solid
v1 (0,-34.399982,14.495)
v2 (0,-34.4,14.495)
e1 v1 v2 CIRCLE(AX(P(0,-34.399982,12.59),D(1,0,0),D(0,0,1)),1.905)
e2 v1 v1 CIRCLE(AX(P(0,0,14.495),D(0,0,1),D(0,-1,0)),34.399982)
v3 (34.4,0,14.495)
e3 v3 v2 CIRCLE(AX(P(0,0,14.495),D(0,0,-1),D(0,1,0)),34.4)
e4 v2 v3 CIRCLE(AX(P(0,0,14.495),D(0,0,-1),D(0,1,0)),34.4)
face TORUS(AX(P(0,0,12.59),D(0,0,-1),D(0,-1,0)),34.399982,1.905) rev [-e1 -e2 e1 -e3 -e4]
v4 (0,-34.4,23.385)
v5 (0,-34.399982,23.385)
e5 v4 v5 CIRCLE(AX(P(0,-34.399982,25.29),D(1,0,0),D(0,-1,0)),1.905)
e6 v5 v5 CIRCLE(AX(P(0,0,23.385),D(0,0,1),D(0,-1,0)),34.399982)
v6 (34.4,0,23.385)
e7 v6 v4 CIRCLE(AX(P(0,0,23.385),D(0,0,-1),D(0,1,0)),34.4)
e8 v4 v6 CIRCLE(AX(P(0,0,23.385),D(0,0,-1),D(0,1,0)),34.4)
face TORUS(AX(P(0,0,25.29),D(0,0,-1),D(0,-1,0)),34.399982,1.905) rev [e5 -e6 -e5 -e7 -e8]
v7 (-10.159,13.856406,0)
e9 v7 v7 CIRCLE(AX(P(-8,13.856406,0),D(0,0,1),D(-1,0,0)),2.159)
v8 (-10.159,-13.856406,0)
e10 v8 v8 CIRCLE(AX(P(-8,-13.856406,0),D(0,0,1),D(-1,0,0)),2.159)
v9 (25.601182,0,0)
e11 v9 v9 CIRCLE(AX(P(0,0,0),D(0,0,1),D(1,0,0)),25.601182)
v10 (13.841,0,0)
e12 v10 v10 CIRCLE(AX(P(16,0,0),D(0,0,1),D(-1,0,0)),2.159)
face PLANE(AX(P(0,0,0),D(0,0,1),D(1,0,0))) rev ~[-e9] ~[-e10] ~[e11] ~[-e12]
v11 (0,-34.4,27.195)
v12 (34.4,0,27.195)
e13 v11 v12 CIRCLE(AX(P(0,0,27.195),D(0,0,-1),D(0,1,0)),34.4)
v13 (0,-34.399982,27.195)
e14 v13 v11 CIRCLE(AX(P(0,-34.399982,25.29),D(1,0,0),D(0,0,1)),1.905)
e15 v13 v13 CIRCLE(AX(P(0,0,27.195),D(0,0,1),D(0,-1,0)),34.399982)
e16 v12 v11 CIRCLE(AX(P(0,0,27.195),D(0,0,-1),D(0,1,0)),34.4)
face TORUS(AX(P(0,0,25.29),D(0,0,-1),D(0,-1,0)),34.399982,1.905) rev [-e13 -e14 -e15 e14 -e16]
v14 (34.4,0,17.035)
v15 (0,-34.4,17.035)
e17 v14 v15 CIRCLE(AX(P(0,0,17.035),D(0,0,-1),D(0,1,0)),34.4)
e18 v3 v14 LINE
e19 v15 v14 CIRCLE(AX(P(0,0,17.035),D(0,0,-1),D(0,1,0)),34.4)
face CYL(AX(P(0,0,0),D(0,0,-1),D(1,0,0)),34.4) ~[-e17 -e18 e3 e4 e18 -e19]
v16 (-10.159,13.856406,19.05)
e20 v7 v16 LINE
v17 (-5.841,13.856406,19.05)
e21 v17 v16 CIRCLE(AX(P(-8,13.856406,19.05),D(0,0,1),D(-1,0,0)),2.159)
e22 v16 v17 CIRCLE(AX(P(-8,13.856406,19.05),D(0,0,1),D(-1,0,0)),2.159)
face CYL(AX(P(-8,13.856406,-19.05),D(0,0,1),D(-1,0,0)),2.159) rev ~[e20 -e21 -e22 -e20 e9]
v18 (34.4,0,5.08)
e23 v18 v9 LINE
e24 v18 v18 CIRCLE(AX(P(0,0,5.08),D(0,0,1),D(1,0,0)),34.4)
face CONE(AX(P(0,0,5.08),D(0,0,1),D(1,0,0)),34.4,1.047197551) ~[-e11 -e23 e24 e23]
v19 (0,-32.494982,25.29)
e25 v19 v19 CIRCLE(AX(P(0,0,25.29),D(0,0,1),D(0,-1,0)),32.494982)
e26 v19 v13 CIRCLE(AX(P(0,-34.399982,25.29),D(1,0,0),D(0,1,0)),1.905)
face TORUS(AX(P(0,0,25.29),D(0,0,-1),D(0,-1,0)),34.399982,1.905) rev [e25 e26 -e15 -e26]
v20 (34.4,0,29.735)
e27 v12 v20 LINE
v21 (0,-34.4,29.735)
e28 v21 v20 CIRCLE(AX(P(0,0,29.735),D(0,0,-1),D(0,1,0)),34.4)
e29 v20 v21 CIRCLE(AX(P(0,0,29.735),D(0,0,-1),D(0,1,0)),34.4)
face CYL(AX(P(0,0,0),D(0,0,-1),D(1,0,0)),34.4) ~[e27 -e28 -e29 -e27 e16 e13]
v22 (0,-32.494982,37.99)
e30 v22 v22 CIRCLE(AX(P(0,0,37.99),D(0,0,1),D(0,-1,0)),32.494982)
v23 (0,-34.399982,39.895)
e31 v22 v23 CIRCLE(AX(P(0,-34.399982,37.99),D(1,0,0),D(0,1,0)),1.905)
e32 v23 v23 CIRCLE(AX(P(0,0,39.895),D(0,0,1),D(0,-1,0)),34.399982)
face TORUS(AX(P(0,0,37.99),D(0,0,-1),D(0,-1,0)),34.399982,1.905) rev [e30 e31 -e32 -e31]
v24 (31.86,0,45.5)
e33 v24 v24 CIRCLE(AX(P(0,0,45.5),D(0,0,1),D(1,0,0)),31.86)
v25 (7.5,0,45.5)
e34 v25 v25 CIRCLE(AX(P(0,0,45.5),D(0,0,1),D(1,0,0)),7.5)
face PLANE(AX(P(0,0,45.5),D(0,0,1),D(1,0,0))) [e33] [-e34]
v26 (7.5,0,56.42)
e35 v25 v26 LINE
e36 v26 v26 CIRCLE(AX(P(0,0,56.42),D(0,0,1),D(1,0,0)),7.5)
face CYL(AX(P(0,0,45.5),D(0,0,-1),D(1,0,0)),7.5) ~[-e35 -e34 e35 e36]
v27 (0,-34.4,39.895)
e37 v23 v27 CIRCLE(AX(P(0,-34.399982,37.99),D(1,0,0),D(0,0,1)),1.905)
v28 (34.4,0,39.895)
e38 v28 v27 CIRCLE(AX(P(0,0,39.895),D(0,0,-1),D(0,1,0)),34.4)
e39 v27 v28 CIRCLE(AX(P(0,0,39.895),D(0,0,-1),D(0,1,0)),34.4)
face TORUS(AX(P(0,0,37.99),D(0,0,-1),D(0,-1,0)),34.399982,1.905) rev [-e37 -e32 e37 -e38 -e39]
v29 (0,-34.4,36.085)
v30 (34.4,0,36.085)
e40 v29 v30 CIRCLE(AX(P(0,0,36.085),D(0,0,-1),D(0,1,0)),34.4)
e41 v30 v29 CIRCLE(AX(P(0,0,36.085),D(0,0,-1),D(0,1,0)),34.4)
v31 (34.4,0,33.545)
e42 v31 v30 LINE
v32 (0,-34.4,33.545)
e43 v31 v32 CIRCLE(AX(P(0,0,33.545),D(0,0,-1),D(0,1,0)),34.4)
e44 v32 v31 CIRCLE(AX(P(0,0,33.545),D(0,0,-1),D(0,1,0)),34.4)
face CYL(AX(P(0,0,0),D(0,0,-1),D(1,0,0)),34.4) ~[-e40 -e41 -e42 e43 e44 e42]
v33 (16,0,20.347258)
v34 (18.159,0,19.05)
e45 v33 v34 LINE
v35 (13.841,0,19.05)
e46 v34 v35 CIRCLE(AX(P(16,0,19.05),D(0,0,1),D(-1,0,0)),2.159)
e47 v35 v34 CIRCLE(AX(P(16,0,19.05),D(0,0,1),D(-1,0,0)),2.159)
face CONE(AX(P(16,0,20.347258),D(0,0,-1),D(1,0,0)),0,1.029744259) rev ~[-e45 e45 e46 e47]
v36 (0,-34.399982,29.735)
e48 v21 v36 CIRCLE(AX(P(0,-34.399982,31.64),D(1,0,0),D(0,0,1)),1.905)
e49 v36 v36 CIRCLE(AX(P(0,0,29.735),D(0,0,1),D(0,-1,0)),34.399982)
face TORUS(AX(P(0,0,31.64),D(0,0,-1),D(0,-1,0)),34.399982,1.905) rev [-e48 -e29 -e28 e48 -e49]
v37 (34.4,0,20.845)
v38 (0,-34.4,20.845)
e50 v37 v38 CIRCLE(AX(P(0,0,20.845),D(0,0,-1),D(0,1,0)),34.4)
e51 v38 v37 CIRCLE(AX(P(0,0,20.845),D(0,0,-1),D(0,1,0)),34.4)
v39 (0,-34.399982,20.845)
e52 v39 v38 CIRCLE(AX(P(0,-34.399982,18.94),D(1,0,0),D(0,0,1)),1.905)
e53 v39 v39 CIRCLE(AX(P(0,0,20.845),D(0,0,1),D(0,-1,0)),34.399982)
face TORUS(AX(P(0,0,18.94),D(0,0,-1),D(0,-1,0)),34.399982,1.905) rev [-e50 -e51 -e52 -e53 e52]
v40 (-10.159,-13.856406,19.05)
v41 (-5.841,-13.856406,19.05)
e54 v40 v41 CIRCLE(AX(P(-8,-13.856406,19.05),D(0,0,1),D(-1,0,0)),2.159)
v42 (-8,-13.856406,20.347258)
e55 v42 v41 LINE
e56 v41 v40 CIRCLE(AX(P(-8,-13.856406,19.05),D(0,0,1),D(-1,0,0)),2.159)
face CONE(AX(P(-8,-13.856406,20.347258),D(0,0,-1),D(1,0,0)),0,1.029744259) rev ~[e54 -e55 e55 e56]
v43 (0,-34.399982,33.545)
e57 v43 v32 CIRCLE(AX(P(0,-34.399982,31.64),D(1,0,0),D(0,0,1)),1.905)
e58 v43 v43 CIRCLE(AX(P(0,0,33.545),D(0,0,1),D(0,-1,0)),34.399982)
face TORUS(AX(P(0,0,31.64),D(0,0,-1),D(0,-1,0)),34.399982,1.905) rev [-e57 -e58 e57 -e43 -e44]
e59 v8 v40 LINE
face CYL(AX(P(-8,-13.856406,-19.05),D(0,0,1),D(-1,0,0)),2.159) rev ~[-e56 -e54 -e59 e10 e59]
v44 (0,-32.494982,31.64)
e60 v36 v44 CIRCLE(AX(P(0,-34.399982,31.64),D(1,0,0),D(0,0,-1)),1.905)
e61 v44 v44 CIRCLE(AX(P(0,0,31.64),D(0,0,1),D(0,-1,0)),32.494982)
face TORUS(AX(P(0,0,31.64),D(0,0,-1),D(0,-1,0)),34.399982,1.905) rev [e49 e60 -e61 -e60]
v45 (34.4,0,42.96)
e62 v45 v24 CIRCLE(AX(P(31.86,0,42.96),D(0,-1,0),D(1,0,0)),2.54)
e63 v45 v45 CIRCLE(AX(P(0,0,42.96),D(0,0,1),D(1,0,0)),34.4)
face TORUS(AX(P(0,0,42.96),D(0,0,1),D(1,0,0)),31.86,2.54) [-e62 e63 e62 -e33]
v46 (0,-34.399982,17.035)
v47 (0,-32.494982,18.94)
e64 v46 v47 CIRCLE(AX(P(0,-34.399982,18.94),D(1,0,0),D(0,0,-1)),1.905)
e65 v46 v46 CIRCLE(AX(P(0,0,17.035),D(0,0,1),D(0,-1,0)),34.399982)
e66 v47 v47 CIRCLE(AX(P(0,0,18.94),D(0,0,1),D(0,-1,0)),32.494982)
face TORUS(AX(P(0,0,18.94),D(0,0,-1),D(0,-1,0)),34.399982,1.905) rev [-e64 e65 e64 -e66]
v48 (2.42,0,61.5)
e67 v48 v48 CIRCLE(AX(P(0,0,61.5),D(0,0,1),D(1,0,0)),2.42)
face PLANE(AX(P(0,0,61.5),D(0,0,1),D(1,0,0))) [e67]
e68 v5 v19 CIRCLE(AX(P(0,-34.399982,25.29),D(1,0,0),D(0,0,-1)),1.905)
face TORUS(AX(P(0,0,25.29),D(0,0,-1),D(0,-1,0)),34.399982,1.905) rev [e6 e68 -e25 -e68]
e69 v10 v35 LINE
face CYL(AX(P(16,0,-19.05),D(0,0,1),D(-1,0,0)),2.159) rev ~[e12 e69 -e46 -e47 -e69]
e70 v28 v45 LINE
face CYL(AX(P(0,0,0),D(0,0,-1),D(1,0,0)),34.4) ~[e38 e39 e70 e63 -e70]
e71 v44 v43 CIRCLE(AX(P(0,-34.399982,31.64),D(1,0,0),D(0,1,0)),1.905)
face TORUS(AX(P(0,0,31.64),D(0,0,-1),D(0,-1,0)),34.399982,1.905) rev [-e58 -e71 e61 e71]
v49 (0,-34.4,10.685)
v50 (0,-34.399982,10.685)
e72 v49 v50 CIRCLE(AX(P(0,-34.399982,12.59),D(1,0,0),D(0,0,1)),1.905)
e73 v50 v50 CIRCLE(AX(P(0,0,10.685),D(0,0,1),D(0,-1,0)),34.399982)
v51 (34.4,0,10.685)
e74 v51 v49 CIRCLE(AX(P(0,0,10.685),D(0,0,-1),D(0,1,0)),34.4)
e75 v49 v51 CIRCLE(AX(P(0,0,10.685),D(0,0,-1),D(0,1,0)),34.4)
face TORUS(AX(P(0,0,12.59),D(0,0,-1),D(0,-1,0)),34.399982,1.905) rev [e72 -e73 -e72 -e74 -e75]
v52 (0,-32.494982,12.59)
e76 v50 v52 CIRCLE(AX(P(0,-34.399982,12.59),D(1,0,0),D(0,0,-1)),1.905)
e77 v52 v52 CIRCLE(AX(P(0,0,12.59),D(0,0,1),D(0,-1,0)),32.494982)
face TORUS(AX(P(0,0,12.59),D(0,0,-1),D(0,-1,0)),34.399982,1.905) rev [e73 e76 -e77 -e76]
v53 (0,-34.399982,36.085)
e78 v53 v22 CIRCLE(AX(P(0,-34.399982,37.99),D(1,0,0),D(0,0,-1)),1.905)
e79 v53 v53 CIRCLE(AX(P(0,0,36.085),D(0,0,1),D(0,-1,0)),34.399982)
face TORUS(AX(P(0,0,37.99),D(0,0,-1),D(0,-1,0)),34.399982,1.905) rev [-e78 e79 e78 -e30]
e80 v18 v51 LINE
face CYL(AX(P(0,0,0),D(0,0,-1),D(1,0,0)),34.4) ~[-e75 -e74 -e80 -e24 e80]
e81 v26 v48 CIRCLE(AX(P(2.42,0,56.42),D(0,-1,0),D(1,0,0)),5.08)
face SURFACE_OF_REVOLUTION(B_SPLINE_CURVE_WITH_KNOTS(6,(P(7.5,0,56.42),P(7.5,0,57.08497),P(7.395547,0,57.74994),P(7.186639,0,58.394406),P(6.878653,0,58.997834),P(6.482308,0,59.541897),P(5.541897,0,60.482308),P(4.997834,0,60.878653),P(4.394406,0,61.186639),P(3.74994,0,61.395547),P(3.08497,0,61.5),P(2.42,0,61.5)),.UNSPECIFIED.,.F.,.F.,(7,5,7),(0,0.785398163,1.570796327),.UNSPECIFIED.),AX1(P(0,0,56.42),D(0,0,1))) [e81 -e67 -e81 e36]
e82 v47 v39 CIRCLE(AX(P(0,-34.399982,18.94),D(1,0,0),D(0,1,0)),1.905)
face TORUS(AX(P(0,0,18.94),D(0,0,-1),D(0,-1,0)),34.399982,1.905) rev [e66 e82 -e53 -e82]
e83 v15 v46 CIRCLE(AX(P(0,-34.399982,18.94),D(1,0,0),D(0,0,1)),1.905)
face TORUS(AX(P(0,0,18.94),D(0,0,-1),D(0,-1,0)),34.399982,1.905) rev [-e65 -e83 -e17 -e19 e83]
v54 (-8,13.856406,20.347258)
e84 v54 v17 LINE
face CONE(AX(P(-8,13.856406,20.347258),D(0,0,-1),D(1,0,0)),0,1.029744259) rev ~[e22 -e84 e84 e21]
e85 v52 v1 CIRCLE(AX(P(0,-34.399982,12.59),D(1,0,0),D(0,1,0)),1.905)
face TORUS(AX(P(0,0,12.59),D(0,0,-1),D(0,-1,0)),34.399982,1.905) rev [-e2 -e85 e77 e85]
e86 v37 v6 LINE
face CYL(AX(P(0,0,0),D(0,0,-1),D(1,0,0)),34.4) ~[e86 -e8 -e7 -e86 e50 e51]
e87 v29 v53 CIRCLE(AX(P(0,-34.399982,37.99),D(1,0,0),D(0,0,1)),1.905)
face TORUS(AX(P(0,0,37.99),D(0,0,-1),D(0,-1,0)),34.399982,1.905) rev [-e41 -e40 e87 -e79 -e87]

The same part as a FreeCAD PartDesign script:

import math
import FreeCAD as App
import Part
import Sketcher
Q = App.Units.Quantity


def edges_at(feature, points):
    """Names of the edges that pass closest to the given points."""
    edges = feature.Shape.Edges
    near = lambda p: min(range(len(edges)), key=lambda i: edges[i].distToShape(Part.Vertex(*p))[0])
    return sorted({f"Edge{near(p) + 1}" for p in points})

doc = App.newDocument("Part")
body = doc.addObject("PartDesign::Body", "Body")

sketch1 = body.newObject("Sketcher::SketchObject", "Sketch")
sketch1.AttachmentSupport = (doc.getObject("XY_Plane"), [""])
sketch1.MapMode = "FlatFace"
sketch1.addGeometry(Part.Circle(App.Vector(0, 0, 0), App.Vector(0, 0, 1), 34.4), False)
sketch1.addConstraint(Sketcher.Constraint("Coincident", 0, 3, -1, 1))
sketch1.addConstraint(Sketcher.Constraint("Diameter", 0, 68.8))
pad1 = body.newObject("PartDesign::Pad", "Pad")
pad1.Profile = sketch1
pad1.Length = 45.5

sketch2 = body.newObject("Sketcher::SketchObject", "Sketch001")
sketch2.AttachmentSupport = (doc.getObject("XY_Plane"), [""])
sketch2.MapMode = "FlatFace"
sketch2.AttachmentOffset = App.Placement(App.Vector(0, 0, 45.5), App.Rotation())
sketch2.addGeometry(Part.Circle(App.Vector(0, 0, 0), App.Vector(0, 0, 1), 7.5), False)
sketch2.addConstraint(Sketcher.Constraint("Coincident", 0, 3, -1, 1))
sketch2.addConstraint(Sketcher.Constraint("Diameter", 0, 15.0))
pad2 = body.newObject("PartDesign::Pad", "Pad001")
pad2.Profile = sketch2
pad2.Length = 16

sketch3 = body.newObject("Sketcher::SketchObject", "Sketch002")
sketch3.AttachmentSupport = (doc.getObject("XY_Plane"), [""])
sketch3.MapMode = "FlatFace"
sketch3.addGeometry(Part.Circle(App.Vector(-8, -13.856406, 0), App.Vector(0, 0, 1), 2.159), False)
sketch3.addGeometry(Part.Circle(App.Vector(16, 0, 0), App.Vector(0, 0, 1), 2.159), False)
sketch3.addGeometry(Part.Circle(App.Vector(-8, 13.856406, 0), App.Vector(0, 0, 1), 2.159), False)
sketch3.addConstraint(Sketcher.Constraint("Equal", 0, 1))
sketch3.addConstraint(Sketcher.Constraint("Equal", 1, 2))
sketch3.addConstraint(Sketcher.Constraint("Symmetric", 0, 3, 2, 3, -1))
sketch3.addConstraint(Sketcher.Constraint("PointOnObject", 1, 3, -1))
sketch3.addConstraint(Sketcher.Constraint("Diameter", 0, Q("0.17 in")))
sketch3.addConstraint(Sketcher.Constraint("DistanceX", 0, 3, -1, 1, 8.0))
sketch3.addConstraint(Sketcher.Constraint("DistanceX", -1, 1, 1, 3, 16.0))
sketch3.addConstraint(Sketcher.Constraint("DistanceY", 0, 3, -1, 1, 13.856406))
doc.recompute()
hole = body.newObject("PartDesign::Hole", "Hole")
hole.Profile = sketch3
hole.ThreadType = "None"
hole.Diameter = Q("0.17 in")
hole.DepthType = "Dimension"
hole.Depth = Q("0.75 in")
hole.DrillPoint = "Angled"
hole.DrillPointAngle = 118
hole.Reversed = True
doc.recompute()

chamfer = body.newObject("PartDesign::Chamfer", "Chamfer")
chamfer.Base = (hole, edges_at(hole, [(-34.4, 0, 0)]))
chamfer.ChamferType = "Two distances"
chamfer.Size = Q("0.2 in")
chamfer.Size2 = 8.798818

sketch4 = body.newObject("Sketcher::SketchObject", "Sketch003")
sketch4.AttachmentSupport = (doc.getObject("YZ_Plane"), [""])
sketch4.MapMode = "FlatFace"
sketch4.addGeometry(Part.ArcOfCircle(Part.Circle(App.Vector(-34.399982, 12.59, 0), App.Vector(0, 0, 1), 1.905), math.radians(90), math.radians(270)), False)
sketch4.addGeometry(Part.ArcOfCircle(Part.Circle(App.Vector(-34.399982, 12.59, 0), App.Vector(0, 0, 1), 1.905), math.radians(-90), math.radians(0)), False)
sketch4.addGeometry(Part.ArcOfCircle(Part.Circle(App.Vector(-34.399982, 12.59, 0), App.Vector(0, 0, 1), 1.905), math.radians(0), math.radians(90)), False)
sketch4.addGeometry(Part.ArcOfCircle(Part.Circle(App.Vector(-34.399982, 37.99, 0), App.Vector(0, 0, 1), 1.905), math.radians(90), math.radians(270)), False)
sketch4.addGeometry(Part.ArcOfCircle(Part.Circle(App.Vector(-34.399982, 37.99, 0), App.Vector(0, 0, 1), 1.905), math.radians(-90), math.radians(0)), False)
sketch4.addGeometry(Part.ArcOfCircle(Part.Circle(App.Vector(-34.399982, 37.99, 0), App.Vector(0, 0, 1), 1.905), math.radians(0), math.radians(90)), False)
sketch4.addGeometry(Part.ArcOfCircle(Part.Circle(App.Vector(-34.399982, 31.64, 0), App.Vector(0, 0, 1), 1.905), math.radians(90), math.radians(270)), False)
sketch4.addGeometry(Part.ArcOfCircle(Part.Circle(App.Vector(-34.399982, 31.64, 0), App.Vector(0, 0, 1), 1.905), math.radians(-90), math.radians(0)), False)
sketch4.addGeometry(Part.ArcOfCircle(Part.Circle(App.Vector(-34.399982, 31.64, 0), App.Vector(0, 0, 1), 1.905), math.radians(0), math.radians(90)), False)
sketch4.addGeometry(Part.ArcOfCircle(Part.Circle(App.Vector(-34.399982, 25.29, 0), App.Vector(0, 0, 1), 1.905), math.radians(180), math.radians(270)), False)
sketch4.addGeometry(Part.ArcOfCircle(Part.Circle(App.Vector(-34.399982, 25.29, 0), App.Vector(0, 0, 1), 1.905), math.radians(-90), math.radians(0)), False)
sketch4.addGeometry(Part.ArcOfCircle(Part.Circle(App.Vector(-34.399982, 25.29, 0), App.Vector(0, 0, 1), 1.905), math.radians(0), math.radians(90)), False)
sketch4.addGeometry(Part.ArcOfCircle(Part.Circle(App.Vector(-34.399982, 25.29, 0), App.Vector(0, 0, 1), 1.905), math.radians(90), math.radians(180)), False)
sketch4.addGeometry(Part.ArcOfCircle(Part.Circle(App.Vector(-34.399982, 18.94, 0), App.Vector(0, 0, 1), 1.905), math.radians(90), math.radians(270)), False)
sketch4.addGeometry(Part.ArcOfCircle(Part.Circle(App.Vector(-34.399982, 18.94, 0), App.Vector(0, 0, 1), 1.905), math.radians(-90), math.radians(0)), False)
sketch4.addGeometry(Part.ArcOfCircle(Part.Circle(App.Vector(-34.399982, 18.94, 0), App.Vector(0, 0, 1), 1.905), math.radians(0), math.radians(90)), False)
sketch4.addConstraint(Sketcher.Constraint("Tangent", 0, 2, 1, 1))
sketch4.addConstraint(Sketcher.Constraint("Tangent", 1, 2, 2, 1))
sketch4.addConstraint(Sketcher.Constraint("Tangent", 2, 2, 0, 1))
sketch4.addConstraint(Sketcher.Constraint("Tangent", 3, 2, 4, 1))
sketch4.addConstraint(Sketcher.Constraint("Tangent", 4, 2, 5, 1))
sketch4.addConstraint(Sketcher.Constraint("Tangent", 5, 2, 3, 1))
sketch4.addConstraint(Sketcher.Constraint("Tangent", 6, 2, 7, 1))
sketch4.addConstraint(Sketcher.Constraint("Tangent", 7, 2, 8, 1))
sketch4.addConstraint(Sketcher.Constraint("Tangent", 8, 2, 6, 1))
sketch4.addConstraint(Sketcher.Constraint("Tangent", 9, 2, 10, 1))
sketch4.addConstraint(Sketcher.Constraint("Tangent", 10, 2, 11, 1))
sketch4.addConstraint(Sketcher.Constraint("Tangent", 11, 2, 12, 1))
sketch4.addConstraint(Sketcher.Constraint("Tangent", 12, 2, 9, 1))
sketch4.addConstraint(Sketcher.Constraint("Tangent", 13, 2, 14, 1))
sketch4.addConstraint(Sketcher.Constraint("Tangent", 14, 2, 15, 1))
sketch4.addConstraint(Sketcher.Constraint("Tangent", 15, 2, 13, 1))
sketch4.addConstraint(Sketcher.Constraint("Equal", 2, 3))
sketch4.addConstraint(Sketcher.Constraint("Equal", 5, 6))
sketch4.addConstraint(Sketcher.Constraint("Equal", 8, 9))
sketch4.addConstraint(Sketcher.Constraint("Equal", 9, 10))
sketch4.addConstraint(Sketcher.Constraint("Equal", 12, 13))
sketch4.addConstraint(Sketcher.Constraint("Horizontal", 2, 3, 1, 2))
sketch4.addConstraint(Sketcher.Constraint("Horizontal", 5, 3, 4, 2))
sketch4.addConstraint(Sketcher.Constraint("Horizontal", 8, 3, 7, 2))
sketch4.addConstraint(Sketcher.Constraint("Horizontal", 12, 3, 10, 2))
sketch4.addConstraint(Sketcher.Constraint("Horizontal", 10, 2, 12, 2))
sketch4.addConstraint(Sketcher.Constraint("Horizontal", 15, 3, 14, 2))
sketch4.addConstraint(Sketcher.Constraint("Vertical", 2, 3, 3, 3))
sketch4.addConstraint(Sketcher.Constraint("Vertical", 5, 3, 6, 3))
sketch4.addConstraint(Sketcher.Constraint("Vertical", 8, 3, 9, 3))
sketch4.addConstraint(Sketcher.Constraint("Vertical", 12, 3, 13, 3))
sketch4.addConstraint(Sketcher.Constraint("Vertical", 15, 3, 0, 2))
sketch4.addConstraint(Sketcher.Constraint("Vertical", 0, 2, 2, 2))
sketch4.addConstraint(Sketcher.Constraint("Vertical", 2, 2, 3, 2))
sketch4.addConstraint(Sketcher.Constraint("Vertical", 3, 2, 5, 2))
sketch4.addConstraint(Sketcher.Constraint("Vertical", 5, 2, 6, 2))
sketch4.addConstraint(Sketcher.Constraint("Vertical", 6, 2, 8, 2))
sketch4.addConstraint(Sketcher.Constraint("Vertical", 8, 2, 9, 2))
sketch4.addConstraint(Sketcher.Constraint("Vertical", 9, 2, 11, 2))
sketch4.addConstraint(Sketcher.Constraint("Vertical", 11, 2, 13, 2))
sketch4.addConstraint(Sketcher.Constraint("Vertical", 13, 2, 15, 2))
sketch4.addConstraint(Sketcher.Constraint("Radius", 0, Q("0.075 in")))
sketch4.addConstraint(Sketcher.Constraint("DistanceY", 0, 3, 3, 3, Q("1 in")))
sketch4.addConstraint(Sketcher.Constraint("DistanceY", 0, 3, 9, 3, Q("0.5 in")))
sketch4.addConstraint(Sketcher.Constraint("DistanceY", 8, 2, 3, 2, Q("0.1 in")))
sketch4.addConstraint(Sketcher.Constraint("DistanceY", 2, 2, 13, 2, Q("0.1 in")))
sketch4.addConstraint(Sketcher.Constraint("DistanceY", -1, 1, 0, 3, 12.59))
sketch4.addConstraint(Sketcher.Constraint("DistanceX", 0, 3, -1, 1, 34.399982))
groove = body.newObject("PartDesign::Groove", "Groove")
groove.Profile = sketch4
groove.ReferenceAxis = (sketch4, ["V_Axis"])
groove.Angle = 360
doc.recompute()

fillet = body.newObject("PartDesign::Fillet", "Fillet")
fillet.Base = (groove, edges_at(groove, [(-34.4, 0, 45.5)]))
fillet.Radius = Q("0.1 in")
doc.recompute()

fillet2 = body.newObject("PartDesign::Fillet", "Fillet001")
fillet2.Base = (fillet, edges_at(fillet, [(-7.5, 0, 61.5)]))
fillet2.Radius = Q("0.2 in")

doc.recompute()
